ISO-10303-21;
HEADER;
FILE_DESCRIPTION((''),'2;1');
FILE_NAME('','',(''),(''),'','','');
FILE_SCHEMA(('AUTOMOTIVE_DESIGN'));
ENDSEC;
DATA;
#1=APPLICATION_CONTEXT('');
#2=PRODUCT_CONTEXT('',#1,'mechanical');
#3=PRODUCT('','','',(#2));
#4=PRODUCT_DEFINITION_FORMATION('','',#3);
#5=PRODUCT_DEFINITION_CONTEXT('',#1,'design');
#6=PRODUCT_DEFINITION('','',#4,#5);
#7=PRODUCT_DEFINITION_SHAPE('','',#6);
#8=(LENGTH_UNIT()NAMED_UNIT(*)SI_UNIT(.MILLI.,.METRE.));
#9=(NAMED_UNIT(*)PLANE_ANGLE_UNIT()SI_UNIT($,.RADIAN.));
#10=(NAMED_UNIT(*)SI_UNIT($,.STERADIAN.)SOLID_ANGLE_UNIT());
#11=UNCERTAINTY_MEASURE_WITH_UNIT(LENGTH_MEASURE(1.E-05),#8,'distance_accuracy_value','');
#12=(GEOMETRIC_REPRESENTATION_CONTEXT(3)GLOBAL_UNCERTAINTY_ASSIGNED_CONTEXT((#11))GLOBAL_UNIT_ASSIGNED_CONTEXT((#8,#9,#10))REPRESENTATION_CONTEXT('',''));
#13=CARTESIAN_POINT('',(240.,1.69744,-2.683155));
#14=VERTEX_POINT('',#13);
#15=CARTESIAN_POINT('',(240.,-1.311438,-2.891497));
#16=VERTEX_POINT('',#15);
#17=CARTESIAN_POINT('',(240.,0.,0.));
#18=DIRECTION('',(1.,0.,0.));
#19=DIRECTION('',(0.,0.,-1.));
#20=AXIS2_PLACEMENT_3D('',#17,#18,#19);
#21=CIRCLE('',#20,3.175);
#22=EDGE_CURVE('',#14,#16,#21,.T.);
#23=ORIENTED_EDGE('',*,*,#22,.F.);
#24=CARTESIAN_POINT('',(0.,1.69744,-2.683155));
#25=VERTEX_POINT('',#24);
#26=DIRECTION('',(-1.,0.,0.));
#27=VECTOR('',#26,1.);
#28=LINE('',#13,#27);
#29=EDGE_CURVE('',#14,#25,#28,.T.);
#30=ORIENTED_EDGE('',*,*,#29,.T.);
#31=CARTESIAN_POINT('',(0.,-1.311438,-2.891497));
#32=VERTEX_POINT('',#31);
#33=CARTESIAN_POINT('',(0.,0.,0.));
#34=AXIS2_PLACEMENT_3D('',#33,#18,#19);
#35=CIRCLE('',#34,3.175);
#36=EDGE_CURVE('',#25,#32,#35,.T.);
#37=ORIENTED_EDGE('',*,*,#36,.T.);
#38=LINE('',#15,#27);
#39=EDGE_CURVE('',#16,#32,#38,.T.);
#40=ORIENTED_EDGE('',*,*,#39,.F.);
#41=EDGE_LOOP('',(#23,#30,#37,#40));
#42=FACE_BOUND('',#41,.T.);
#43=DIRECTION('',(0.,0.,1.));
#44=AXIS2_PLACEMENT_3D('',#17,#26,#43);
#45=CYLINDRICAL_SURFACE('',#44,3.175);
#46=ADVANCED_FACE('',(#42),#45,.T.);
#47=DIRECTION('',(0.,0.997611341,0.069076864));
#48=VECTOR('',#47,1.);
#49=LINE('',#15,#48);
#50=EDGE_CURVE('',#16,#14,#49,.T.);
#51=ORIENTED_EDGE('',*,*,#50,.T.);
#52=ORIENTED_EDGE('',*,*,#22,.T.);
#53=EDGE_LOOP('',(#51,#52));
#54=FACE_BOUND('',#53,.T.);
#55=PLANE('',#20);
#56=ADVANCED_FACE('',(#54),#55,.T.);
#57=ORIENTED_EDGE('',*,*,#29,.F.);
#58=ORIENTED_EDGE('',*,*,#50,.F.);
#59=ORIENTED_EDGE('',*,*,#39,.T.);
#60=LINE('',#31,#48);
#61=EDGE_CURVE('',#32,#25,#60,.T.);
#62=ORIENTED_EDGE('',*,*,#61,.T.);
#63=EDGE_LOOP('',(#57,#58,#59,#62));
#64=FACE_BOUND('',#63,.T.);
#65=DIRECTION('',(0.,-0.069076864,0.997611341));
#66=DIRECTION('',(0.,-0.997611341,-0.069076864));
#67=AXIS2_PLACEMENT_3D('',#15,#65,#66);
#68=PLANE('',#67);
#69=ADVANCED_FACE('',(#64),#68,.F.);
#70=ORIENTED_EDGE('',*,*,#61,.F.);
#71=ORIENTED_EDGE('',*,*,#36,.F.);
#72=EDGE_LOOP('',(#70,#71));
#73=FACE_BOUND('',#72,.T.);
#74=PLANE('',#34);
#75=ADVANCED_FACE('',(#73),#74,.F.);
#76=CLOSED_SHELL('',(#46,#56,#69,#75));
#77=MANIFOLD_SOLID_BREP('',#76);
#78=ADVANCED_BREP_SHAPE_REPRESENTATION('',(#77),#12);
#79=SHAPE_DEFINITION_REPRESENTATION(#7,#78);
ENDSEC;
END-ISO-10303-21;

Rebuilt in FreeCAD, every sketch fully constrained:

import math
import FreeCAD as App
import Part
import Sketcher

V = App.Vector

doc = App.newDocument("Part")
params = doc.addObject("Spreadsheet::Sheet", "Params")
for row, (alias, value) in enumerate([
    ("pad1_length", "240 mm"),
], start=1):
    params.set(f"A{row}", alias)
    params.set(f"B{row}", "=" + value)
    params.setAlias(f"B{row}", alias)

body = doc.addObject("PartDesign::Body", "Body")

sketch1 = body.newObject("Sketcher::SketchObject", "Sketch")
sketch1.AttachmentSupport = (doc.getObject("YZ_Plane"), [""])
sketch1.MapMode = "FlatFace"
sketch1.addGeometry(Part.LineSegment(V(-1.3, -2.9, 0), V(1.7, -2.7, 0)), False)
sketch1.addGeometry(Part.ArcOfCircle(Part.Circle(V(0, 0, 0), V(0, 0, 1), 3.2), math.radians(-58), math.radians(246)), False)
sketch1.addConstraint(Sketcher.Constraint("Coincident", 0, 1, 1, 2))
sketch1.addConstraint(Sketcher.Constraint("Coincident", 1, 1, 0, 2))
sketch1.addConstraint(Sketcher.Constraint("Coincident", 1, 3, -1, 1))
sketch1.addConstraint(Sketcher.Constraint("Radius", 1, 3.175))
sketch1.addConstraint(Sketcher.Constraint("DistanceX", 0, 1, -1, 1, 1.311438))
sketch1.addConstraint(Sketcher.Constraint("DistanceX", -1, 1, 1, 1, 1.69744))
pad1 = body.newObject("PartDesign::Pad", "Pad")
pad1.Profile = sketch1
pad1.setExpression("Length", "Params.pad1_length")

doc.recompute()
